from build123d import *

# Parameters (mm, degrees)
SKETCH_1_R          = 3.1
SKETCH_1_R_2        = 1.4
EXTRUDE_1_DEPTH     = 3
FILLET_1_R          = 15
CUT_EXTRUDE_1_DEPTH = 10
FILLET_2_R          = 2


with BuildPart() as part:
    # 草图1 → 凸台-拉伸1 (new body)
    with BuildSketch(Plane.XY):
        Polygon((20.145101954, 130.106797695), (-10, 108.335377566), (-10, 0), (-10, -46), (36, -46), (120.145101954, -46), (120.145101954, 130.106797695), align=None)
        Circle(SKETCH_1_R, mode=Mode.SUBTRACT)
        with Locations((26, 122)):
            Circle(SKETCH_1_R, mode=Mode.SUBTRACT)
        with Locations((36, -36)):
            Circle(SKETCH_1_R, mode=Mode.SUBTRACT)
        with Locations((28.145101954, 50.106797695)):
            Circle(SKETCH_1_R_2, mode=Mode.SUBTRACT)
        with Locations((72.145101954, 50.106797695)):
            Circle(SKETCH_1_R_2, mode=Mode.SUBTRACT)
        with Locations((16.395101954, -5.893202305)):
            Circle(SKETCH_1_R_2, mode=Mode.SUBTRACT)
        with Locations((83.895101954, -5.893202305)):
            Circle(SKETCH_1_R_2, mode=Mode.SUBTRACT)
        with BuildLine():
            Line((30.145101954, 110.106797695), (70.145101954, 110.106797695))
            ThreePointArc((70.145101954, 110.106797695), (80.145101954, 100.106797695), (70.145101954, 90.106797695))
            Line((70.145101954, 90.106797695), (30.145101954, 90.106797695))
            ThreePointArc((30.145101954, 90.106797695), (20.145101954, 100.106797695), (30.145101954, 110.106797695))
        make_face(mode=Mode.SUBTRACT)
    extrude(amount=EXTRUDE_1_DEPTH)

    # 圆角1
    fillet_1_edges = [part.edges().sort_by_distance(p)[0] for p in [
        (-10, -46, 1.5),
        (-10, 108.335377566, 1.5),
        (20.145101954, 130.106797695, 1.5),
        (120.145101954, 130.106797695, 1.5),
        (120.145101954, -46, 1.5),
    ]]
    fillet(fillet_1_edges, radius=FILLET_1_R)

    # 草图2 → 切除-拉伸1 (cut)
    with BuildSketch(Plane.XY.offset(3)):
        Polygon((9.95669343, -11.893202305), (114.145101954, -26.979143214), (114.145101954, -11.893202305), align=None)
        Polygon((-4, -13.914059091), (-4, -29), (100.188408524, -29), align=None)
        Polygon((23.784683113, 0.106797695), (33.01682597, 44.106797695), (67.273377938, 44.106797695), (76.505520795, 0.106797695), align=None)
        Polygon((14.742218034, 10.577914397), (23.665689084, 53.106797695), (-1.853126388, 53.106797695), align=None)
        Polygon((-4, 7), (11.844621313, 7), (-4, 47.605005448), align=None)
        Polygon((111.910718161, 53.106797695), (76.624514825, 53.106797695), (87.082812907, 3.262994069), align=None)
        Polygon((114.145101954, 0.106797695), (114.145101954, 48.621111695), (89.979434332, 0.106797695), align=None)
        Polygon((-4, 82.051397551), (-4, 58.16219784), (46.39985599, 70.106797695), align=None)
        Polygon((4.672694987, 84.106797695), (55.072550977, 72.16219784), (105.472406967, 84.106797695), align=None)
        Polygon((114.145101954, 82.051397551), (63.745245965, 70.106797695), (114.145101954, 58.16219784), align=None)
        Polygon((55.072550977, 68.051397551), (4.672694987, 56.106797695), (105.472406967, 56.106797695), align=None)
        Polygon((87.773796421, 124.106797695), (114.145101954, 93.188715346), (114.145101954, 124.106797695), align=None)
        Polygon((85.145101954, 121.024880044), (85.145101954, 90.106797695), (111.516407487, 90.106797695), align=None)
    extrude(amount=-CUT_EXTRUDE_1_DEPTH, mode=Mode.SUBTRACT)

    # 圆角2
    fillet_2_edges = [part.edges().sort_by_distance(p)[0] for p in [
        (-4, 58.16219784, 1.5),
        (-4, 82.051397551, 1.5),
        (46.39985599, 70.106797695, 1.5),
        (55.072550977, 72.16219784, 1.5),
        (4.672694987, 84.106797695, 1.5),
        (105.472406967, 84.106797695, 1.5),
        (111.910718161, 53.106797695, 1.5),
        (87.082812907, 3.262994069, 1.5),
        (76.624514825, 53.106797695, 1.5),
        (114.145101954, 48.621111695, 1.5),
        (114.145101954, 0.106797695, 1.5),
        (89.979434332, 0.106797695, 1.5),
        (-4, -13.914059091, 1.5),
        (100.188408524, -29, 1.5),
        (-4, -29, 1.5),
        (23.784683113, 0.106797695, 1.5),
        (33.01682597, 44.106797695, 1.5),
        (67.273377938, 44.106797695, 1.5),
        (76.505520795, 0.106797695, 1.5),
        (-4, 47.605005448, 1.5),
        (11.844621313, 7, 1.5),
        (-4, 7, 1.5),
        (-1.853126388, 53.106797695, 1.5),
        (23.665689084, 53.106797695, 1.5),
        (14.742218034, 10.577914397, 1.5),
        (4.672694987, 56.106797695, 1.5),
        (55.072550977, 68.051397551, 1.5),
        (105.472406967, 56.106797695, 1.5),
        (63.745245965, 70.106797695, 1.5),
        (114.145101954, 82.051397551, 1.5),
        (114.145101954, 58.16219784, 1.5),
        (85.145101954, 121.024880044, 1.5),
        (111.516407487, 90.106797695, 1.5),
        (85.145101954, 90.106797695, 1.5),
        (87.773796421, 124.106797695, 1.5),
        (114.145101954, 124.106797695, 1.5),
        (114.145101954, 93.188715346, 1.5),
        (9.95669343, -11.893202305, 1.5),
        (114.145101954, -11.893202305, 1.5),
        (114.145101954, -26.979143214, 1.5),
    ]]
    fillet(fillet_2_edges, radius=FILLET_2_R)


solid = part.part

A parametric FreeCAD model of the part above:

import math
import FreeCAD as App
import Part
import Sketcher
from FreeCAD import Vector


def edges_at(feature, points):
    """Names of the edges that pass closest to the given points."""
    edges = feature.Shape.Edges
    near = lambda p: min(range(len(edges)), key=lambda i: edges[i].distToShape(Part.Vertex(*p))[0])
    return sorted({f"Edge{near(p) + 1}" for p in points})


def add_polygon(sketch, points):
    """Adds a closed chain of lines whose ends are joined by coincident constraints."""
    first, n = sketch.GeometryCount, len(points)
    for a, b in zip(points, points[1:] + points[:1]):
        sketch.addGeometry(Part.LineSegment(App.Vector(*a, 0), App.Vector(*b, 0)), False)
    for i in range(n):
        sketch.addConstraint(Sketcher.Constraint("Coincident", first + i, 2, first + (i + 1) % n, 1))

doc = App.newDocument("Part")
body = doc.addObject("PartDesign::Body", "Body")

sketch1 = body.newObject("Sketcher::SketchObject", "Sketch")
sketch1.AttachmentSupport = (doc.getObject("XY_Plane"), [""])
sketch1.MapMode = "FlatFace"
add_polygon(sketch1, [(20.1, 130.1), (-10, 108.3), (-10, -46), (120.1, -46), (120.1, 130.1)])
sketch1.addGeometry(Part.Circle(Vector(0, 0, 0), Vector(0, 0, 1), 3.1), False)
sketch1.addGeometry(Part.Circle(Vector(16.4, -5.9, 0), Vector(0, 0, 1), 1.4), False)
sketch1.addGeometry(Part.Circle(Vector(36, -36, 0), Vector(0, 0, 1), 3.1), False)
sketch1.addGeometry(Part.Circle(Vector(83.9, -5.9, 0), Vector(0, 0, 1), 1.4), False)
sketch1.addGeometry(Part.Circle(Vector(28.1, 50.1, 0), Vector(0, 0, 1), 1.4), False)
sketch1.addGeometry(Part.Circle(Vector(26, 122, 0), Vector(0, 0, 1), 3.1), False)
sketch1.addGeometry(Part.Circle(Vector(72.1, 50.1, 0), Vector(0, 0, 1), 1.4), False)
sketch1.addGeometry(Part.ArcOfCircle(Part.Circle(Vector(30.1, 100.1, 0), Vector(0, 0, 1), 10), math.radians(90), math.radians(270)), False)
sketch1.addGeometry(Part.LineSegment(Vector(30.1, 110.1, 0), Vector(70.1, 110.1, 0)), False)
sketch1.addGeometry(Part.ArcOfCircle(Part.Circle(Vector(70.1, 100.1, 0), Vector(0, 0, 1), 10), math.radians(-90), math.radians(90)), False)
sketch1.addGeometry(Part.LineSegment(Vector(70.1, 90.1, 0), Vector(30.1, 90.1, 0)), False)
sketch1.addConstraint(Sketcher.Constraint("Tangent", 12, 1, 13, 1))
sketch1.addConstraint(Sketcher.Constraint("Tangent", 13, 2, 14, 2))
sketch1.addConstraint(Sketcher.Constraint("Tangent", 14, 1, 15, 1))
sketch1.addConstraint(Sketcher.Constraint("Tangent", 15, 2, 12, 2))
sketch1.addConstraint(Sketcher.Constraint("Vertical", 1))
sketch1.addConstraint(Sketcher.Constraint("Horizontal", 2))
sketch1.addConstraint(Sketcher.Constraint("Vertical", 3))
sketch1.addConstraint(Sketcher.Constraint("Horizontal", 4))
sketch1.addConstraint(Sketcher.Constraint("Horizontal", 13))
sketch1.addConstraint(Sketcher.Constraint("Horizontal", 15))
sketch1.addConstraint(Sketcher.Constraint("Coincident", 5, 3, -1, 1))
sketch1.addConstraint(Sketcher.Constraint("Equal", 5, 7))
sketch1.addConstraint(Sketcher.Constraint("Equal", 6, 8))
sketch1.addConstraint(Sketcher.Constraint("Equal", 8, 9))
sketch1.addConstraint(Sketcher.Constraint("Equal", 7, 10))
sketch1.addConstraint(Sketcher.Constraint("Equal", 9, 11))
sketch1.addConstraint(Sketcher.Constraint("Horizontal", 6, 3, 8, 3))
sketch1.addConstraint(Sketcher.Constraint("Horizontal", 9, 3, 11, 3))
sketch1.addConstraint(Sketcher.Constraint("Radius", 12, 10.0))
sketch1.addConstraint(Sketcher.Constraint("Diameter", 5, 6.2))
sketch1.addConstraint(Sketcher.Constraint("Diameter", 6, 2.8))
sketch1.addConstraint(Sketcher.Constraint("DistanceX", 4, 2, 4, 1, 100.0))
sketch1.addConstraint(Sketcher.Constraint("DistanceX", 13, 1, 13, 2, 40.0))
sketch1.addConstraint(Sketcher.Constraint("DistanceX", -1, 1, 7, 3, 36.0))
sketch1.addConstraint(Sketcher.Constraint("DistanceY", 7, 3, -1, 1, 36.0))
sketch1.addConstraint(Sketcher.Constraint("DistanceX", -1, 1, 10, 3, 26.0))
sketch1.addConstraint(Sketcher.Constraint("DistanceY", -1, 1, 10, 3, 122.0))
sketch1.addConstraint(Sketcher.Constraint("DistanceX", 0, 2, -1, 1, 10.0))
sketch1.addConstraint(Sketcher.Constraint("DistanceY", 1, 2, -1, 1, 46.0))
sketch1.addConstraint(Sketcher.Constraint("DistanceY", 6, 3, 9, 3, 56.0))
sketch1.addConstraint(Sketcher.Constraint("DistanceX", 9, 3, 11, 3, 44.0))
sketch1.addConstraint(Sketcher.Constraint("DistanceX", 9, 3, 12, 3, 2.0))
sketch1.addConstraint(Sketcher.Constraint("DistanceY", 9, 3, 12, 3, 50.0))
sketch1.addConstraint(Sketcher.Constraint("DistanceX", 11, 3, 2, 2, 48.0))
sketch1.addConstraint(Sketcher.Constraint("DistanceY", 14, 3, 3, 2, 30.0))
sketch1.addConstraint(Sketcher.Constraint("DistanceX", 6, 3, 8, 3, 67.5))
sketch1.addConstraint(Sketcher.Constraint("DistanceX", 6, 3, 9, 3, 11.75))
sketch1.addConstraint(Sketcher.Constraint("DistanceX", 2, 1, 2, 2, 130.145102))
sketch1.addConstraint(Sketcher.Constraint("Distance", 0, 37.184969))
sketch1.addConstraint(Sketcher.Constraint("DistanceY", 1, 2, 1, 1, 154.335378))
pad1 = body.newObject("PartDesign::Pad", "Pad")
pad1.Profile = sketch1
pad1.Length = 3
doc.recompute()

fillet = body.newObject("PartDesign::Fillet", "Fillet")
fillet.Base = (pad1, edges_at(pad1, [
    (-10, -46, 1.5),
    (-10, 108.335, 1.5),
    (20.145, 130.107, 1.5),
    (120.145, 130.107, 1.5),
    (120.145, -46, 1.5),
]))
fillet.Radius = 15

sketch2 = body.newObject("Sketcher::SketchObject", "Sketch001")
sketch2.AttachmentSupport = (doc.getObject("XY_Plane"), [""])
sketch2.MapMode = "FlatFace"
sketch2.AttachmentOffset = App.Placement(Vector(0, 0, 3), App.Rotation())
add_polygon(sketch2, [(10, -12), (114, -27), (114, -12)])
add_polygon(sketch2, [(-4, -14), (-4, -29), (100, -29)])
add_polygon(sketch2, [(33, 44), (24, 0), (77, 0), (67, 44)])
add_polygon(sketch2, [(15, 11), (24, 53), (-2, 53)])
add_polygon(sketch2, [(-4, 7), (12, 7), (-4, 48)])
add_polygon(sketch2, [(112, 53), (77, 53), (87, 3)])
add_polygon(sketch2, [(114, 0), (114, 49), (90, 0)])
add_polygon(sketch2, [(-4, 82), (-4, 58), (46, 70)])
add_polygon(sketch2, [(5, 84), (55, 72), (105, 84)])
add_polygon(sketch2, [(114, 82), (64, 70), (114, 58)])
add_polygon(sketch2, [(55, 68), (5, 56), (105, 56)])
add_polygon(sketch2, [(88, 124), (114, 93), (114, 124)])
add_polygon(sketch2, [(85, 121), (85, 90), (112, 90)])
sketch2.addConstraint(Sketcher.Constraint("Vertical", 1))
sketch2.addConstraint(Sketcher.Constraint("Horizontal", 2))
sketch2.addConstraint(Sketcher.Constraint("Vertical", 3))
sketch2.addConstraint(Sketcher.Constraint("Horizontal", 4))
sketch2.addConstraint(Sketcher.Constraint("Horizontal", 7))
sketch2.addConstraint(Sketcher.Constraint("Horizontal", 9))
sketch2.addConstraint(Sketcher.Constraint("Horizontal", 11))
sketch2.addConstraint(Sketcher.Constraint("Horizontal", 13))
sketch2.addConstraint(Sketcher.Constraint("Vertical", 15))
sketch2.addConstraint(Sketcher.Constraint("Horizontal", 16))
sketch2.addConstraint(Sketcher.Constraint("Vertical", 19))
sketch2.addConstraint(Sketcher.Constraint("Horizontal", 21))
sketch2.addConstraint(Sketcher.Constraint("Vertical", 22))
sketch2.addConstraint(Sketcher.Constraint("Horizontal", 27))
sketch2.addConstraint(Sketcher.Constraint("Vertical", 30))
sketch2.addConstraint(Sketcher.Constraint("Horizontal", 32))
sketch2.addConstraint(Sketcher.Constraint("Vertical", 35))
sketch2.addConstraint(Sketcher.Constraint("Horizontal", 36))
sketch2.addConstraint(Sketcher.Constraint("Vertical", 37))
sketch2.addConstraint(Sketcher.Constraint("Horizontal", 38))
sketch2.addConstraint(Sketcher.Constraint("Parallel", 0, 5))
sketch2.addConstraint(Sketcher.Constraint("Parallel", 6, 10))
sketch2.addConstraint(Sketcher.Constraint("Parallel", 12, 14))
sketch2.addConstraint(Sketcher.Constraint("Parallel", 8, 17))
sketch2.addConstraint(Sketcher.Constraint("Parallel", 18, 20))
sketch2.addConstraint(Sketcher.Constraint("Parallel", 24, 25))
sketch2.addConstraint(Sketcher.Constraint("Parallel", 23, 26))
sketch2.addConstraint(Sketcher.Constraint("Parallel", 26, 28))
sketch2.addConstraint(Sketcher.Constraint("Parallel", 25, 29))
sketch2.addConstraint(Sketcher.Constraint("Parallel", 28, 31))
sketch2.addConstraint(Sketcher.Constraint("Parallel", 29, 33))
sketch2.addConstraint(Sketcher.Constraint("Parallel", 34, 39))
sketch2.addConstraint(Sketcher.Constraint("Horizontal", 11, 2, 16, 2))
sketch2.addConstraint(Sketcher.Constraint("Horizontal", 7, 2, 20, 2))
sketch2.addConstraint(Sketcher.Constraint("Horizontal", 23, 2, 28, 2))
sketch2.addConstraint(Sketcher.Constraint("Horizontal", 22, 2, 29, 2))
sketch2.addConstraint(Sketcher.Constraint("Horizontal", 24, 2, 30, 2))
sketch2.addConstraint(Sketcher.Constraint("Vertical", 5, 2, 14, 2))
sketch2.addConstraint(Sketcher.Constraint("Vertical", 1, 2, 19, 2))
sketch2.addConstraint(Sketcher.Constraint("Vertical", 15, 2, 22, 2))
sketch2.addConstraint(Sketcher.Constraint("Vertical", 21, 2, 29, 2))
sketch2.addConstraint(Sketcher.Constraint("Vertical", 27, 2, 31, 2))
sketch2.addConstraint(Sketcher.Constraint("Vertical", 26, 2, 32, 2))
sketch2.addConstraint(Sketcher.Constraint("Vertical", 30, 2, 34, 2))
sketch2.addConstraint(Sketcher.Constraint("Equal", 2, 4))
sketch2.addConstraint(Sketcher.Constraint("Equal", 36, 38))
sketch2.addConstraint(Sketcher.Constraint("Equal", 6, 8))
sketch2.addConstraint(Sketcher.Constraint("Equal", 24, 25))
sketch2.addConstraint(Sketcher.Constraint("DistanceX", 3, 2, -1, 1, 4.0))
sketch2.addConstraint(Sketcher.Constraint("DistanceY", 3, 2, -1, 1, 29.0))
sketch2.addConstraint(Sketcher.Constraint("DistanceY", -1, 1, 13, 2, 7.0))
sketch2.addConstraint(Sketcher.Constraint("DistanceY", 2, 2, 6, 2, 12.0))
sketch2.addConstraint(Sketcher.Constraint("DistanceY", 7, 2, 8, 2, 44.0))
sketch2.addConstraint(Sketcher.Constraint("DistanceY", 9, 2, 10, 2, 9.0))
sketch2.addConstraint(Sketcher.Constraint("DistanceY", 10, 2, 23, 2, 17.0))
sketch2.addConstraint(Sketcher.Constraint("DistanceY", 18, 2, 26, 2, 31.0))
sketch2.addConstraint(Sketcher.Constraint("DistanceY", 11, 2, 31, 2, 3.0))
sketch2.addConstraint(Sketcher.Constraint("DistanceY", 26, 2, 35, 2, 40.0))
sketch2.addConstraint(Sketcher.Constraint("DistanceY", 26, 2, 37, 2, 6.0))
sketch2.addConstraint(Sketcher.Constraint("DistanceX", 37, 2, 34, 2, 29.0))
sketch2.addConstraint(Sketcher.Constraint("DistanceY", 22, 2, 22, 1, 23.8892))
sketch2.addConstraint(Sketcher.Constraint("DistanceX", 26, 2, 38, 2, 6.044001))
sketch2.addConstraint(Sketcher.Constraint("Distance", 20, 54.199798))
sketch2.addConstraint(Sketcher.Constraint("DistanceX", 2, 2, 2, 1, 104.188409))
sketch2.addConstraint(Sketcher.Constraint("DistanceX", 9, 2, 9, 1, 34.256552))
sketch2.addConstraint(Sketcher.Constraint("DistanceX", 13, 1, 13, 2, 15.844621))
sketch2.addConstraint(Sketcher.Constraint("DistanceX", 27, 2, 27, 1, 100.799712))
sketch2.addConstraint(Sketcher.Constraint("DistanceY", 1, 1, 1, 2, 15.085941))
sketch2.addConstraint(Sketcher.Constraint("DistanceX", -1, 1, 0, 2, 114.145102))
sketch2.addConstraint(Sketcher.Constraint("Distance", 6, 44.958119))
sketch2.addConstraint(Sketcher.Constraint("Distance", 10, 43.454968))
sketch2.addConstraint(Sketcher.Constraint("Distance", 12, 45.652069))
sketch2.addConstraint(Sketcher.Constraint("DistanceX", 16, 2, 16, 1, 35.286203))
sketch2.addConstraint(Sketcher.Constraint("DistanceX", 21, 1, 21, 2, 24.165668))
sketch2.addConstraint(Sketcher.Constraint("DistanceX", 36, 2, 36, 1, 26.371306))
sketch2.addConstraint(Sketcher.Constraint("DistanceY", 35, 1, 35, 2, 30.918082))
sketch2.addConstraint(Sketcher.Constraint("DistanceX", -1, 1, 7, 2, 76.505521))
sketch2.addConstraint(Sketcher.Constraint("DistanceX", -1, 1, 10, 2, 23.665689))
sketch2.addConstraint(Sketcher.Constraint("DistanceX", -1, 1, 18, 2, 111.910718))
sketch2.addConstraint(Sketcher.Constraint("DistanceY", -1, 1, 19, 2, 48.621112))
pocket1 = body.newObject("PartDesign::Pocket", "Pocket")
pocket1.Profile = sketch2
pocket1.Length = 10
doc.recompute()

fillet2 = body.newObject("PartDesign::Fillet", "Fillet001")
fillet2.Base = (pocket1, edges_at(pocket1, [
    (-4, 58.162, 1.5),
    (-4, 82.051, 1.5),
    (46.4, 70.107, 1.5),
    (55.073, 72.162, 1.5),
    (4.673, 84.107, 1.5),
    (105.472, 84.107, 1.5),
    (111.911, 53.107, 1.5),
    (87.083, 3.263, 1.5),
    (76.625, 53.107, 1.5),
    (114.145, 48.621, 1.5),
    (114.145, 0.107, 1.5),
    (89.979, 0.107, 1.5),
    (-4, -13.914, 1.5),
    (100.188, -29, 1.5),
    (-4, -29, 1.5),
    (23.785, 0.107, 1.5),
    (33.017, 44.107, 1.5),
    (67.273, 44.107, 1.5),
    (76.506, 0.107, 1.5),
    (-4, 47.605, 1.5),
    (11.845, 7, 1.5),
    (-4, 7, 1.5),
    (-1.853, 53.107, 1.5),
    (23.666, 53.107, 1.5),
    (14.742, 10.578, 1.5),
    (4.673, 56.107, 1.5),
    (55.073, 68.051, 1.5),
    (105.472, 56.107, 1.5),
    (63.745, 70.107, 1.5),
    (114.145, 82.051, 1.5),
    (114.145, 58.162, 1.5),
    (85.145, 121.025, 1.5),
    (111.516, 90.107, 1.5),
    (85.145, 90.107, 1.5),
    (87.774, 124.107, 1.5),
    (114.145, 124.107, 1.5),
    (114.145, 93.189, 1.5),
    (9.957, -11.893, 1.5),
    (114.145, -11.893, 1.5),
    (114.145, -26.979, 1.5),
]))
fillet2.Radius = 2

doc.recompute()
